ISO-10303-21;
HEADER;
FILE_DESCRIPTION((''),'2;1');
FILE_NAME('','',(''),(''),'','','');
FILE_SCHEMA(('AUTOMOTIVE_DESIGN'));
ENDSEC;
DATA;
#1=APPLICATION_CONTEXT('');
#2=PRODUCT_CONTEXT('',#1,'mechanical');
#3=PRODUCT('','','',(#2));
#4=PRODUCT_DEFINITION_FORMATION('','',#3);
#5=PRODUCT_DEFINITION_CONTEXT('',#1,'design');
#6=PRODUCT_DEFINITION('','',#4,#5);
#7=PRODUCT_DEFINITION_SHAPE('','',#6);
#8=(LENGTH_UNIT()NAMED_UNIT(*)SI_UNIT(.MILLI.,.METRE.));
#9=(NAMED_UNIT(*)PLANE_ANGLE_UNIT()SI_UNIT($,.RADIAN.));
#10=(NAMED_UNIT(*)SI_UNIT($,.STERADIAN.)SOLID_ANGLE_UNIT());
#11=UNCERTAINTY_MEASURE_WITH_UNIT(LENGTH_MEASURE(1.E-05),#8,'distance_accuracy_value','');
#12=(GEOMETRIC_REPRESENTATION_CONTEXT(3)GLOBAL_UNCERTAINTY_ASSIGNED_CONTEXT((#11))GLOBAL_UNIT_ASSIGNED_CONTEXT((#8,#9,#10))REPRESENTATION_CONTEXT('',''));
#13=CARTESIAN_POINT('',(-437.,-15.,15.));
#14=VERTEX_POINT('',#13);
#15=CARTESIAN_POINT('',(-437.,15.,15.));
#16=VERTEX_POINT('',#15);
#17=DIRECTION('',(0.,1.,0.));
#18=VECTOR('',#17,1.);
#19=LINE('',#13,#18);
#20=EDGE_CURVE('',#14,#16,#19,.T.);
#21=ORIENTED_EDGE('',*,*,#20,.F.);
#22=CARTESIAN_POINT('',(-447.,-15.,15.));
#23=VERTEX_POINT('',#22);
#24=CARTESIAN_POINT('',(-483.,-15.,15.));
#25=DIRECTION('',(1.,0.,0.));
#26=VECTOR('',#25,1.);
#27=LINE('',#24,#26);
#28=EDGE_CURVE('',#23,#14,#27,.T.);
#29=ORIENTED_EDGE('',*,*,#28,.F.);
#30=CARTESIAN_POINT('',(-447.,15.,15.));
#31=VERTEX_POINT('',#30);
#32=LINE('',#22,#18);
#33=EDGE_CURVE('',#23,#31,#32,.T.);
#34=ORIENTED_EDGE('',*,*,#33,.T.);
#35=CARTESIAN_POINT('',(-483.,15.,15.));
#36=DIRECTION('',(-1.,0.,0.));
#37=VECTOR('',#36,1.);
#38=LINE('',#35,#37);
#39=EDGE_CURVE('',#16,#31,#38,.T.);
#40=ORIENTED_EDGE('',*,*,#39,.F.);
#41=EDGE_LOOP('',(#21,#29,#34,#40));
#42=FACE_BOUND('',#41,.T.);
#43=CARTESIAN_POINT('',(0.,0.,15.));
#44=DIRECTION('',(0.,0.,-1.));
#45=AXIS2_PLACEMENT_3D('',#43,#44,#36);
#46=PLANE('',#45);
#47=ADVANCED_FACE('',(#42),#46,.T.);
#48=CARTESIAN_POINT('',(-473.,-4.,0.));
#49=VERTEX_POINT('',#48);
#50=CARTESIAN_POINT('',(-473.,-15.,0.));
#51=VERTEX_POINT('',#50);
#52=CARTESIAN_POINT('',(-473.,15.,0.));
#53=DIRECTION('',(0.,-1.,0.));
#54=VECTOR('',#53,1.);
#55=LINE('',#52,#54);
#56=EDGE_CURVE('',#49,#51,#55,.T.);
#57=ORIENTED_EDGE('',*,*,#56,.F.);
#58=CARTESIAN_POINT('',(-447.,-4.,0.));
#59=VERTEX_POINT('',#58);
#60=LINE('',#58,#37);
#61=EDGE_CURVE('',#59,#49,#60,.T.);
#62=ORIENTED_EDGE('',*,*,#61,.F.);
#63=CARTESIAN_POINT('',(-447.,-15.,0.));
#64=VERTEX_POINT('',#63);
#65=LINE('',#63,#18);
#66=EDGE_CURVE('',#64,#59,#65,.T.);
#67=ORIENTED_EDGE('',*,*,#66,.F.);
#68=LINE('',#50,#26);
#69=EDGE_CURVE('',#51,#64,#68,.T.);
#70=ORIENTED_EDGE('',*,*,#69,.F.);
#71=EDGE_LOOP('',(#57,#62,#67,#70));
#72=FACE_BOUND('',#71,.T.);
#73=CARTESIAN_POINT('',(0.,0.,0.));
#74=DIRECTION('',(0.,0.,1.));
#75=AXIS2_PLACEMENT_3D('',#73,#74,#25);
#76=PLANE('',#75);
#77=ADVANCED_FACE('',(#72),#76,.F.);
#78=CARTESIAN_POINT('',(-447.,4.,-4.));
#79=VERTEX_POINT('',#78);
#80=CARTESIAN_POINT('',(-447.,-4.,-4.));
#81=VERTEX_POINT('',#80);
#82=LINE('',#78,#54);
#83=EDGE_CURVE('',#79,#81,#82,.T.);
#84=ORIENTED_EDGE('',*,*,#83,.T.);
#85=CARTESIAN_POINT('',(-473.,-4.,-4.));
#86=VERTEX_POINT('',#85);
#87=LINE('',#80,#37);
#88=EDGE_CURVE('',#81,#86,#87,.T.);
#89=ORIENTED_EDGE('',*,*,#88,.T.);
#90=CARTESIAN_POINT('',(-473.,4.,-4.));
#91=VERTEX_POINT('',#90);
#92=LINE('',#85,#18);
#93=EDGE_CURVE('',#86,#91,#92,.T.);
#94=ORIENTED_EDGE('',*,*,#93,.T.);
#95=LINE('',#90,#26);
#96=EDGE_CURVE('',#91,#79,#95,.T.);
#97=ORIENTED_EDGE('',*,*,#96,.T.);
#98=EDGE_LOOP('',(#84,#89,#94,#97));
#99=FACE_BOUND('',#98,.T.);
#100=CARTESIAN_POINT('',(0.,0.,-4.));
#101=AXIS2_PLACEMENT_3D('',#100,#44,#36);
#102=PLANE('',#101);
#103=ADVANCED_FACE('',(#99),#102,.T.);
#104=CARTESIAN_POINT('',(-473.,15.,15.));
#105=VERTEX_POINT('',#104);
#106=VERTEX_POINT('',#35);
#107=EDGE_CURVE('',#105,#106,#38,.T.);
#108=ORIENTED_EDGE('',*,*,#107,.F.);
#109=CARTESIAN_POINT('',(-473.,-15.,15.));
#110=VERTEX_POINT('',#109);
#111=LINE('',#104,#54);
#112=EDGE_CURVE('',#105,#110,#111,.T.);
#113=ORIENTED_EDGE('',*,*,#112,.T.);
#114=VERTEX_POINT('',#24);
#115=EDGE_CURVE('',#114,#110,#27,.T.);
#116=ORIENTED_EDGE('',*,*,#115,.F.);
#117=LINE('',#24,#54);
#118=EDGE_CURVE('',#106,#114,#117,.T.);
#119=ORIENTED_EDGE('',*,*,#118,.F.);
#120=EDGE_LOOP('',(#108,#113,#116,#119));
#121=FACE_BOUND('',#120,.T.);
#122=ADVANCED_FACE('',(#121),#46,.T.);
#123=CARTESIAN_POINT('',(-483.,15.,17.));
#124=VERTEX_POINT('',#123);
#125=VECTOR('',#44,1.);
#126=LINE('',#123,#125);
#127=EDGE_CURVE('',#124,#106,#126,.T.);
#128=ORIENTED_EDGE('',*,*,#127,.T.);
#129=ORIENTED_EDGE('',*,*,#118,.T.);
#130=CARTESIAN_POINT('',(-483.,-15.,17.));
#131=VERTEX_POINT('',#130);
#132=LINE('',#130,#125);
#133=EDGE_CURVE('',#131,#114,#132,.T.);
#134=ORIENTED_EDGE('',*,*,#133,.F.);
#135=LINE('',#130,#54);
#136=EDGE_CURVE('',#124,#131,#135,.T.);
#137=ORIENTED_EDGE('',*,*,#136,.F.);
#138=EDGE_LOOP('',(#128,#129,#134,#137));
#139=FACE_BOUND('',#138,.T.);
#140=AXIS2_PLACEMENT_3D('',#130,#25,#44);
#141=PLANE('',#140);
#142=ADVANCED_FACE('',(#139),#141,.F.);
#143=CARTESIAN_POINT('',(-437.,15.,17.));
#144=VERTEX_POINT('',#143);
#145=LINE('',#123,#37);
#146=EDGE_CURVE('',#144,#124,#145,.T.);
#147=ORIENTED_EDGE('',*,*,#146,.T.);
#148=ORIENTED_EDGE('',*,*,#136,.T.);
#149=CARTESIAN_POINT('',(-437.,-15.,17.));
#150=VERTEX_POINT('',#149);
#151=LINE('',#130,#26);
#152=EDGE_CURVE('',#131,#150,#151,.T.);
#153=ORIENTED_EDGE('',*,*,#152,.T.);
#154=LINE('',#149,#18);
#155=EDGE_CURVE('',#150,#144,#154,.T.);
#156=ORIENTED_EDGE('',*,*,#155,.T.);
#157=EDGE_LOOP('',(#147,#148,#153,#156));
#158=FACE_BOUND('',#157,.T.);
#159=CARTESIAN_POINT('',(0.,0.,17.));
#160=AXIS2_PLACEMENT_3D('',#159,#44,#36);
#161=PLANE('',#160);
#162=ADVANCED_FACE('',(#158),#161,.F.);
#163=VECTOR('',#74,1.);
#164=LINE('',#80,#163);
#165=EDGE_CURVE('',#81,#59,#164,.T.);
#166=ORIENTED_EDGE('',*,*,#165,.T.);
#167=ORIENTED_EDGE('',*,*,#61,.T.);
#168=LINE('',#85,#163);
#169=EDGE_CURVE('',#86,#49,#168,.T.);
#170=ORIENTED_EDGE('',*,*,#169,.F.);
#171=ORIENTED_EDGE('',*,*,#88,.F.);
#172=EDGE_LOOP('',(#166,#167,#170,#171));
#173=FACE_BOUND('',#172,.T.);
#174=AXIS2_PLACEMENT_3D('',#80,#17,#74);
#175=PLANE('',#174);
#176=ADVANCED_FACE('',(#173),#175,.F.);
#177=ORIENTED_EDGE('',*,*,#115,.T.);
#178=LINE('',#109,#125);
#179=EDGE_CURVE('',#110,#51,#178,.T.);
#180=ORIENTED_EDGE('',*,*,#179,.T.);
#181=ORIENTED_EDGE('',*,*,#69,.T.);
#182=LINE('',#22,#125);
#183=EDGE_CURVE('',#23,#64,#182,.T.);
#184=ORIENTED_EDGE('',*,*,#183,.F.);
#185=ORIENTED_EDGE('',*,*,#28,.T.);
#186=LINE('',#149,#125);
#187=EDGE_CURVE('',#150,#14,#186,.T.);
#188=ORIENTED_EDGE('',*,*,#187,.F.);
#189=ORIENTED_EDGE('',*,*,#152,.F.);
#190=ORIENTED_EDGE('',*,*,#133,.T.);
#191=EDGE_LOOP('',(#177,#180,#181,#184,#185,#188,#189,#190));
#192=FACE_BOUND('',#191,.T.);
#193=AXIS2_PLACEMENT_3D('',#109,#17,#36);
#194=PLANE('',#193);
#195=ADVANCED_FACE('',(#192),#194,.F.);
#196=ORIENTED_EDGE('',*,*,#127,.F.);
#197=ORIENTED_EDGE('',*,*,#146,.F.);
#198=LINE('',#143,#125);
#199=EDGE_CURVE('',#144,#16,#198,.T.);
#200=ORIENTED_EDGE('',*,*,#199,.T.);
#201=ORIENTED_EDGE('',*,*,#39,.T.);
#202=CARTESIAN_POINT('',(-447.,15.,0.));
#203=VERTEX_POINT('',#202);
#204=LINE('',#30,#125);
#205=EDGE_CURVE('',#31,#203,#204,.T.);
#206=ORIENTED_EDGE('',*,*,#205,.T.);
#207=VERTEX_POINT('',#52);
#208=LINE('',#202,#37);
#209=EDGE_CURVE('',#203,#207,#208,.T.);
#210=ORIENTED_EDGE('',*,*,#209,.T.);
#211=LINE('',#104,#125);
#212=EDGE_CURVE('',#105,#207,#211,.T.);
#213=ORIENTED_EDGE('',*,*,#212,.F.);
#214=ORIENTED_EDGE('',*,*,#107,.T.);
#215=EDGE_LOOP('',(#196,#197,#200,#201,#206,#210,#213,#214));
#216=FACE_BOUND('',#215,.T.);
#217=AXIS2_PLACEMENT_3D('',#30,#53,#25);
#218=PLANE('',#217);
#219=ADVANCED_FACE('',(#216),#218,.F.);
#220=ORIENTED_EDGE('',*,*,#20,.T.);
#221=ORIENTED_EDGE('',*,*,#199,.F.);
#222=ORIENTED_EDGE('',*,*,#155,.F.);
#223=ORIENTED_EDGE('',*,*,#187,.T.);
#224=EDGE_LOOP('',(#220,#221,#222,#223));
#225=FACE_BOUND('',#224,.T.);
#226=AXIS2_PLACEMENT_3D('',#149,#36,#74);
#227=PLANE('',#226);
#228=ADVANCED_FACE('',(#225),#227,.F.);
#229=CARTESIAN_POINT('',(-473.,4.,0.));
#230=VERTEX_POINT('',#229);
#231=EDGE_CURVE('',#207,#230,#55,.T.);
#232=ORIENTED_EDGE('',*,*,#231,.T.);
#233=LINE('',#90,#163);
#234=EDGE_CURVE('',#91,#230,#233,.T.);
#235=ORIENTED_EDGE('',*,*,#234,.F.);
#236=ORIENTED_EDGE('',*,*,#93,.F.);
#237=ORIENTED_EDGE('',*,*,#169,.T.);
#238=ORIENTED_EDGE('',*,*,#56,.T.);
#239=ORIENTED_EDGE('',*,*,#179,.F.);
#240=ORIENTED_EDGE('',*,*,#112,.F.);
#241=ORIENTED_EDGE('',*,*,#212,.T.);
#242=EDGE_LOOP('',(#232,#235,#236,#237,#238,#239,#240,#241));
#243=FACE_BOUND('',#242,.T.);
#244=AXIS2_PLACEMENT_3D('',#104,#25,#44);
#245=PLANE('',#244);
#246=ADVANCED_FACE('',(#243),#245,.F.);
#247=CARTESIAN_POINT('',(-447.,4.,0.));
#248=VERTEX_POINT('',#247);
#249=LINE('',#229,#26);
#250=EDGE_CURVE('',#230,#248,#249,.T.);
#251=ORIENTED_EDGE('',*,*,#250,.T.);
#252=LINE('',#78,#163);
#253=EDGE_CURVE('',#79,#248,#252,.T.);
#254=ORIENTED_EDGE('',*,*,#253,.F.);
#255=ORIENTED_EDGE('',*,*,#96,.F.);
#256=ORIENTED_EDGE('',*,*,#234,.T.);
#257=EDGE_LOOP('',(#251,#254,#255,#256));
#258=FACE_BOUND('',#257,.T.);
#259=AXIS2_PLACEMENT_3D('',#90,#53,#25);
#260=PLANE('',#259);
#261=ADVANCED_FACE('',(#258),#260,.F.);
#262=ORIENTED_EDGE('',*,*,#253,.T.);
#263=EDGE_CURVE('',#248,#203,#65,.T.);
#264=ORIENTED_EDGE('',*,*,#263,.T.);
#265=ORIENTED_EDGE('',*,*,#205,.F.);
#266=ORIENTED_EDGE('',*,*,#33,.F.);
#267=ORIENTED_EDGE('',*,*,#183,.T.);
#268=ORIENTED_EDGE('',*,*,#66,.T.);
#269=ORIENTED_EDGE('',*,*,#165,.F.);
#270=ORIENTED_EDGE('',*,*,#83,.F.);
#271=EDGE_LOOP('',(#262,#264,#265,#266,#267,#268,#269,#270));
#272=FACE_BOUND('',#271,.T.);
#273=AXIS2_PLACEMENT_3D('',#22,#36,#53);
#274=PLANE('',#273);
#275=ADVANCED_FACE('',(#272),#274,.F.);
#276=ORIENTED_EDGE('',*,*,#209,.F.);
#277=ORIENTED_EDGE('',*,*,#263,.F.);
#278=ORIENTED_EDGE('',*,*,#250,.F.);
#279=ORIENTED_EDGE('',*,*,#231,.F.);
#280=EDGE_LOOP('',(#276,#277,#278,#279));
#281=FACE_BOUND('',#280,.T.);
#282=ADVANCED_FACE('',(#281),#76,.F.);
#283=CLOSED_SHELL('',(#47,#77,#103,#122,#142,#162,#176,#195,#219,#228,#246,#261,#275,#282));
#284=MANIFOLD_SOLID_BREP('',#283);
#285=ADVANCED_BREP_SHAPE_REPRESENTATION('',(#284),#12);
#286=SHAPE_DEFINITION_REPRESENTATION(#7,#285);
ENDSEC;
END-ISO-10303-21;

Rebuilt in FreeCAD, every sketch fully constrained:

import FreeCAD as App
import Part
import Sketcher

V = App.Vector
Q = App.Units.Quantity


def add_polygon(sketch, points):
    """Adds a closed chain of lines whose ends are joined by coincident constraints."""
    first, n = sketch.GeometryCount, len(points)
    for a, b in zip(points, points[1:] + points[:1]):
        sketch.addGeometry(Part.LineSegment(App.Vector(*a, 0), App.Vector(*b, 0)), False)
    for i in range(n):
        sketch.addConstraint(Sketcher.Constraint("Coincident", first + i, 2, first + (i + 1) % n, 1))

doc = App.newDocument("Part")
body = doc.addObject("PartDesign::Body", "Body")

sketch1 = body.newObject("Sketcher::SketchObject", "Sketch")
sketch1.AttachmentSupport = (doc.getObject("XY_Plane"), [""])
sketch1.MapMode = "FlatFace"
add_polygon(sketch1, [(-473, 15), (-473, -15), (-447, -15), (-447, 15)])
sketch1.addConstraint(Sketcher.Constraint("Vertical", 0))
sketch1.addConstraint(Sketcher.Constraint("Horizontal", 1))
sketch1.addConstraint(Sketcher.Constraint("Vertical", 2))
sketch1.addConstraint(Sketcher.Constraint("Horizontal", 3))
sketch1.addConstraint(Sketcher.Constraint("DistanceX", 1, 1, 1, 2, Q("26 mm")))
sketch1.addConstraint(Sketcher.Constraint("DistanceY", 0, 2, 0, 1, Q("30 mm")))
sketch1.addConstraint(Sketcher.Constraint("DistanceX", 0, 2, -1, 1, Q("473 mm")))
sketch1.addConstraint(Sketcher.Constraint("DistanceY", 0, 2, -1, 1, Q("15 mm")))
pad1 = body.newObject("PartDesign::Pad", "Pad")
pad1.Profile = sketch1
pad1.Length = 15

sketch2 = body.newObject("Sketcher::SketchObject", "Sketch001")
sketch2.AttachmentSupport = (doc.getObject("XY_Plane"), [""])
sketch2.MapMode = "FlatFace"
sketch2.AttachmentOffset = App.Placement(V(0, 0, 15), App.Rotation())
add_polygon(sketch2, [(-483, 15), (-483, -15), (-437, -15), (-437, 15)])
sketch2.addConstraint(Sketcher.Constraint("Vertical", 0))
sketch2.addConstraint(Sketcher.Constraint("Horizontal", 1))
sketch2.addConstraint(Sketcher.Constraint("Vertical", 2))
sketch2.addConstraint(Sketcher.Constraint("Horizontal", 3))
sketch2.addConstraint(Sketcher.Constraint("DistanceX", 1, 1, 1, 2, Q("46 mm")))
sketch2.addConstraint(Sketcher.Constraint("DistanceY", 0, 2, 0, 1, Q("30 mm")))
sketch2.addConstraint(Sketcher.Constraint("DistanceX", 0, 2, -1, 1, Q("483 mm")))
sketch2.addConstraint(Sketcher.Constraint("DistanceY", 0, 2, -1, 1, Q("15 mm")))
pad2 = body.newObject("PartDesign::Pad", "Pad001")
pad2.Profile = sketch2
pad2.Length = 2

sketch3 = body.newObject("Sketcher::SketchObject", "Sketch002")
sketch3.AttachmentSupport = (doc.getObject("XY_Plane"), [""])
sketch3.MapMode = "FlatFace"
add_polygon(sketch3, [(-447, 4), (-447, -4), (-473, -4), (-473, 4)])
sketch3.addConstraint(Sketcher.Constraint("Vertical", 0))
sketch3.addConstraint(Sketcher.Constraint("Horizontal", 1))
sketch3.addConstraint(Sketcher.Constraint("Vertical", 2))
sketch3.addConstraint(Sketcher.Constraint("Horizontal", 3))
sketch3.addConstraint(Sketcher.Constraint("DistanceX", 1, 2, 1, 1, Q("26 mm")))
sketch3.addConstraint(Sketcher.Constraint("DistanceY", 0, 2, 0, 1, Q("8 mm")))
sketch3.addConstraint(Sketcher.Constraint("DistanceX", 0, 2, -1, 1, Q("447 mm")))
sketch3.addConstraint(Sketcher.Constraint("DistanceY", 0, 2, -1, 1, Q("4 mm")))
pad3 = body.newObject("PartDesign::Pad", "Pad002")
pad3.Profile = sketch3
pad3.Length = 4
pad3.Reversed = True

doc.recompute()
